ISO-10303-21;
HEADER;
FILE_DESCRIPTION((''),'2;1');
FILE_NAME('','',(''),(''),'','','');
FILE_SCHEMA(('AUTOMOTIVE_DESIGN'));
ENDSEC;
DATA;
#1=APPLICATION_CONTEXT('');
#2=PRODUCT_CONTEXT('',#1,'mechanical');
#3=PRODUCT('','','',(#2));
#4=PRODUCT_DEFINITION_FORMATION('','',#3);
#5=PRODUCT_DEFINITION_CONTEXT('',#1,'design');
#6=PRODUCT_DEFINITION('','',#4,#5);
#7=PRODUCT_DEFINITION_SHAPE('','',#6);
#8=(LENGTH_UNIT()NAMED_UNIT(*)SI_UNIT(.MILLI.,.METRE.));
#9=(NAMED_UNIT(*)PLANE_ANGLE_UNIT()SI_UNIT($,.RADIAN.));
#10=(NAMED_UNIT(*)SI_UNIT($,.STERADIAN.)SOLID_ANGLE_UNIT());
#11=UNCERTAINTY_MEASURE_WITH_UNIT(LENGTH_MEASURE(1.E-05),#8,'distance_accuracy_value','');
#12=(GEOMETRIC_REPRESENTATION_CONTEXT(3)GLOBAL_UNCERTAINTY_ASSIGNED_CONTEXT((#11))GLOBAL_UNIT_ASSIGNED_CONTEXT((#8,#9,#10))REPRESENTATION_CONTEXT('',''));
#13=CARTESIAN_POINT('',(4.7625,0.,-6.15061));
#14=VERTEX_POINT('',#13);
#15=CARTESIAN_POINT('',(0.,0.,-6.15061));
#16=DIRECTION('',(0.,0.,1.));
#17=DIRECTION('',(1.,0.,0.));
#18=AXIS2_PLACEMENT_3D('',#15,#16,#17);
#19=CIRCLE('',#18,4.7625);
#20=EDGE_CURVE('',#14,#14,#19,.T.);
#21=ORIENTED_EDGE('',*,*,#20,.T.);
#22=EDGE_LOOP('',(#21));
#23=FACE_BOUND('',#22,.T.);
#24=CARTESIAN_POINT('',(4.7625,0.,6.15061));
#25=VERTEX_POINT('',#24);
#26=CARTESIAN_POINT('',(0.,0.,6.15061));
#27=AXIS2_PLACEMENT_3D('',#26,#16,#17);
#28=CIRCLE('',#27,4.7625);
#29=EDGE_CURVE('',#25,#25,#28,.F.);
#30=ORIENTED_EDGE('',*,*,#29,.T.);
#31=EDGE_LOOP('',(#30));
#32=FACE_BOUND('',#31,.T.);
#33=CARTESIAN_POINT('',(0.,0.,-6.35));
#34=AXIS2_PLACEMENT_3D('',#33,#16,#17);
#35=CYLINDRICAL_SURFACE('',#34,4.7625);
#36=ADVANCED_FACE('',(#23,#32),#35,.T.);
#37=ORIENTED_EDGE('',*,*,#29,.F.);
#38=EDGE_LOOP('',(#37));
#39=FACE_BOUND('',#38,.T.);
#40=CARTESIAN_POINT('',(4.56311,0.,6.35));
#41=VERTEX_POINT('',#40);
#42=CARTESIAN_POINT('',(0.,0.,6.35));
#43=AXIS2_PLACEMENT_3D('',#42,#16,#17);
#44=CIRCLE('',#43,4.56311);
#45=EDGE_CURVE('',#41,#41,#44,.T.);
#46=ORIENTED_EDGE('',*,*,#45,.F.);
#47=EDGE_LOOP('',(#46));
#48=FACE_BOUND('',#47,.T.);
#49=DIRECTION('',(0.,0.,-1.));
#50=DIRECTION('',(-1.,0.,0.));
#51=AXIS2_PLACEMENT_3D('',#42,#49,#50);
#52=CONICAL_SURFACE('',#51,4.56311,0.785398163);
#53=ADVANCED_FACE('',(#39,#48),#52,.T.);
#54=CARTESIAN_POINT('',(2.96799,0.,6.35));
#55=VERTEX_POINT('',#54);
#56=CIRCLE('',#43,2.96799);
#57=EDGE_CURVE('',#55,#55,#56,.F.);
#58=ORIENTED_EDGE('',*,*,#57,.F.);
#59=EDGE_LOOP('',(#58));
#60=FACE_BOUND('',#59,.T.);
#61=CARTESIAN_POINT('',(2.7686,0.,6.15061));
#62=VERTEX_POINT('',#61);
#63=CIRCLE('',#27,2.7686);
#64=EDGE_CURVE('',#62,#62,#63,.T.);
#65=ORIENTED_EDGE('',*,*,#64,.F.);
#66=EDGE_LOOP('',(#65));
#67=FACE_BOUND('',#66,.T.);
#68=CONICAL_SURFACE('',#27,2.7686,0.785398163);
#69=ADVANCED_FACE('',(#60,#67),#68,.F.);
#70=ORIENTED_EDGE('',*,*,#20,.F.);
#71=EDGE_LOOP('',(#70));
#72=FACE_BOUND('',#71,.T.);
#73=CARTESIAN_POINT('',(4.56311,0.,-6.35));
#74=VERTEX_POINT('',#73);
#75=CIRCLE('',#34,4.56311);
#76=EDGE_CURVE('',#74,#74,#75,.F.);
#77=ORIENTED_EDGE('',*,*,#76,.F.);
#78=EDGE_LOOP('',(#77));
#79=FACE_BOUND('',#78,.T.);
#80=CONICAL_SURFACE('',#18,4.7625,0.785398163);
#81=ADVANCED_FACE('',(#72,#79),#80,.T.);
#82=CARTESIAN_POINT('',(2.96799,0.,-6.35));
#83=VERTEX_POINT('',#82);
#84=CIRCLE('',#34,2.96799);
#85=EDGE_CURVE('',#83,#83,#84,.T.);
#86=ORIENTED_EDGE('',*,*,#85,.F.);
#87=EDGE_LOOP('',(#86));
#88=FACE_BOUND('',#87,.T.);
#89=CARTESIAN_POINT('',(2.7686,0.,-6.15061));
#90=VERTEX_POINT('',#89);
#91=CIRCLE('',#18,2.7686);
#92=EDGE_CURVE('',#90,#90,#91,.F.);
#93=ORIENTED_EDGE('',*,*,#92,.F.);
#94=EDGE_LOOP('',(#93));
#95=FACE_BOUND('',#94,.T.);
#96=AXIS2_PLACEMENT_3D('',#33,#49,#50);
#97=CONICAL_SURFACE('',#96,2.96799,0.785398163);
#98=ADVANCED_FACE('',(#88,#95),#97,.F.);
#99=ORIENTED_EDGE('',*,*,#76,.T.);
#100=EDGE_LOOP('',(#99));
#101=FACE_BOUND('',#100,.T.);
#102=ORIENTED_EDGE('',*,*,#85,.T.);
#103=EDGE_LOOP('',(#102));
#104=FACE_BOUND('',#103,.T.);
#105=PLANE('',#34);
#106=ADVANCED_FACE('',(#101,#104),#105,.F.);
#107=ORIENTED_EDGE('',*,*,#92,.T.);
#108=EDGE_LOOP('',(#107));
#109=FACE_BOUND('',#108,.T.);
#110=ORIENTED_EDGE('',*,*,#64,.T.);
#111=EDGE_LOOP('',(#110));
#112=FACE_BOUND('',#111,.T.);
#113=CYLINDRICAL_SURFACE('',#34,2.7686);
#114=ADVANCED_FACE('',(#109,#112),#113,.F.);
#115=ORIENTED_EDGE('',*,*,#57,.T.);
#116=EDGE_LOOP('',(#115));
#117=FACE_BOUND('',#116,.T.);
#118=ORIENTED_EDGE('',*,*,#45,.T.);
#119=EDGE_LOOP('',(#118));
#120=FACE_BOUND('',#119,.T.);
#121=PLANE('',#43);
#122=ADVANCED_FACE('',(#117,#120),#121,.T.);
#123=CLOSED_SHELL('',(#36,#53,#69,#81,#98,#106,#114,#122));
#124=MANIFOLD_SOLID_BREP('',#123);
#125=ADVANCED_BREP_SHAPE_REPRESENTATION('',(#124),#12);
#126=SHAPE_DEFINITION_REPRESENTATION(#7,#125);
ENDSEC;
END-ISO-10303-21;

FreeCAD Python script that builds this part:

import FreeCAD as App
import Part
import Sketcher
Q = App.Units.Quantity


def edges_at(feature, points):
    """Names of the edges that pass closest to the given points."""
    edges = feature.Shape.Edges
    near = lambda p: min(range(len(edges)), key=lambda i: edges[i].distToShape(Part.Vertex(*p))[0])
    return sorted({f"Edge{near(p) + 1}" for p in points})

doc = App.newDocument("Part")
body = doc.addObject("PartDesign::Body", "Body")

# Sketch on XY plane
sketch1 = body.newObject("Sketcher::SketchObject", "Sketch")
sketch1.AttachmentSupport = (doc.getObject("XY_Plane"), [""])
sketch1.MapMode = "FlatFace"
sketch1.addGeometry(Part.Circle(App.Vector(0, 0, 0), App.Vector(0, 0, 1), 4.8), False)
sketch1.addGeometry(Part.Circle(App.Vector(0, 0, 0), App.Vector(0, 0, 1), 2.8), False)
sketch1.addConstraint(Sketcher.Constraint("Coincident", 0, 3, -1, 1))
sketch1.addConstraint(Sketcher.Constraint("Coincident", 1, 3, -1, 1))
sketch1.addConstraint(Sketcher.Constraint("Diameter", 0, Q("0.375 in")))
sketch1.addConstraint(Sketcher.Constraint("Diameter", 1, Q("0.218 in")))
pad1 = body.newObject("PartDesign::Pad", "Pad")
pad1.Profile = sketch1
pad1.Type = "TwoLengths"
pad1.Length = Q("0.25 in")
pad1.Length2 = Q("0.25 in")
doc.recompute()

chamfer = body.newObject("PartDesign::Chamfer", "Chamfer")
chamfer.Base = (pad1, edges_at(pad1, [
    (-4.763, 0, -6.35),
    (-2.769, 0, -6.35),
    (-4.763, 0, 6.35),
    (-2.769, 0, 6.35),
]))
chamfer.Size = 0.19939

doc.recompute()
